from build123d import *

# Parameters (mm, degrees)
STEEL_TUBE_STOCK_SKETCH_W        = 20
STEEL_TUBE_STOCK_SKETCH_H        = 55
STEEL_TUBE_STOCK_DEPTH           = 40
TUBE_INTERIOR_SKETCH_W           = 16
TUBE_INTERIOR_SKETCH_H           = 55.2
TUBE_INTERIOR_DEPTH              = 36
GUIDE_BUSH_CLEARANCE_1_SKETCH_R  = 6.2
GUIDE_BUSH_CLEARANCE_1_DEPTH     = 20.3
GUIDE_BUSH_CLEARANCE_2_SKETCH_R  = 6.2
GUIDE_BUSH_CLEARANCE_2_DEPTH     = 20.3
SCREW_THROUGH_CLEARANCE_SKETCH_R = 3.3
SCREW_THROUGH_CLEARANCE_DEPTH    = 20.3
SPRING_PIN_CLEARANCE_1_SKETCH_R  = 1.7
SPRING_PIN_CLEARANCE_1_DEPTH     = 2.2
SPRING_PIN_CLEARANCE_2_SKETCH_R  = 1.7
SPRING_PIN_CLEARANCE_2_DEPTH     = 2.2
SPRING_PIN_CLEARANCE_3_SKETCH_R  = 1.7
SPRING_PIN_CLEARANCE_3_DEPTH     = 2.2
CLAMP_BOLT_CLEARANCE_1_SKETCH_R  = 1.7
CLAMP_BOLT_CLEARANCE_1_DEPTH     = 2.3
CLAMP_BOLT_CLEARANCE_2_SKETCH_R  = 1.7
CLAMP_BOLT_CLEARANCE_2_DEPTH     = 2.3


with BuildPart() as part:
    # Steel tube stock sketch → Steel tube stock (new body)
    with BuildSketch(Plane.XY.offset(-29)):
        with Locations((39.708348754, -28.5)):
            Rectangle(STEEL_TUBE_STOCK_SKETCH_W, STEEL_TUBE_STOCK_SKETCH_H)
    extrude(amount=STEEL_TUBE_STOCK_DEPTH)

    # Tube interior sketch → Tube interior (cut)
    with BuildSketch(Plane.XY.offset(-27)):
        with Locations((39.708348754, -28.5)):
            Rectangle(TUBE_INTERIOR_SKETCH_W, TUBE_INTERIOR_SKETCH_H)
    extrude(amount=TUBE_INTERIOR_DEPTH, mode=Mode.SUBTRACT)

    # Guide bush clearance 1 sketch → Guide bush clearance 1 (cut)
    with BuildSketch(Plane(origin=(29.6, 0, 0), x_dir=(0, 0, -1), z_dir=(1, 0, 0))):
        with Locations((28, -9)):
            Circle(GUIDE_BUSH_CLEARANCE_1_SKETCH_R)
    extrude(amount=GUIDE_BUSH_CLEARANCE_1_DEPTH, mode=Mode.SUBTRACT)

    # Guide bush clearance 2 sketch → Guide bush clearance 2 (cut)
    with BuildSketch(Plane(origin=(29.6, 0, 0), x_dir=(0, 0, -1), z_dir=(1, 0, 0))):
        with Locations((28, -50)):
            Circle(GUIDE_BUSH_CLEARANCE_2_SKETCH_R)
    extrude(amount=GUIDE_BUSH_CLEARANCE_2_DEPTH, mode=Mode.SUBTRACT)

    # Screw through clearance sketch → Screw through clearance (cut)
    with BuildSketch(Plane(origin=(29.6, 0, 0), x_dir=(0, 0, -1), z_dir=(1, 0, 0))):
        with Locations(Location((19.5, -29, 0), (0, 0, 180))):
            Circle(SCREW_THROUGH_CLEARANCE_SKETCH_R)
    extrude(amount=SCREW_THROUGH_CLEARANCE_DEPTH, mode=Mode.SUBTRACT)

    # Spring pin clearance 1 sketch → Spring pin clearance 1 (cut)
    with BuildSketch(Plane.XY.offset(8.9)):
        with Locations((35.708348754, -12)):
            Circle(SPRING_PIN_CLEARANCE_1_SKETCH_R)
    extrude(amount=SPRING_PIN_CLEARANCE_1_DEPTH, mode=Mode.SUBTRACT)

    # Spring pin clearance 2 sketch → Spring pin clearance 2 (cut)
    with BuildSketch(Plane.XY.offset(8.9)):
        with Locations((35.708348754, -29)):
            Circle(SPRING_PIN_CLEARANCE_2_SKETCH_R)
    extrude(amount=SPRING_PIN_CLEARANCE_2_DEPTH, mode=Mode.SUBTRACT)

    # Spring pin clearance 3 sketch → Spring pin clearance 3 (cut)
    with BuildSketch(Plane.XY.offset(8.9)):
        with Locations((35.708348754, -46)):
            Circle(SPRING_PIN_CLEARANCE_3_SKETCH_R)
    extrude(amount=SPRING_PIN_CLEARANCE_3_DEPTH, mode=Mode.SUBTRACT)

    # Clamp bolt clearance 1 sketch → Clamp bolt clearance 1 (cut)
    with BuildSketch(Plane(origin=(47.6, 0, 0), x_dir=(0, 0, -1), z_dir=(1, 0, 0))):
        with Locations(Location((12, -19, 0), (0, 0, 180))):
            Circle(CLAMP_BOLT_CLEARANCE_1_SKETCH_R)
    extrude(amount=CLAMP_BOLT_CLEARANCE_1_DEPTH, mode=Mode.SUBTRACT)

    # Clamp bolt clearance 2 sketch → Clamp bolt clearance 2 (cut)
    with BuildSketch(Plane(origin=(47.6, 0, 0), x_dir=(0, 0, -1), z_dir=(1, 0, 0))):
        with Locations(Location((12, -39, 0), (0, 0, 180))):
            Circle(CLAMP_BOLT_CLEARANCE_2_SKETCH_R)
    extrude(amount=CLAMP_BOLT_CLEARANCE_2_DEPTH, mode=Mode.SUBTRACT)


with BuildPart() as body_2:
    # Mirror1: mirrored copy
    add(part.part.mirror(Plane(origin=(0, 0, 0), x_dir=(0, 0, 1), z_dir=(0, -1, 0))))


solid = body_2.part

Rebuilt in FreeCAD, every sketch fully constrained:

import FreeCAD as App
import Part
import Sketcher

V = App.Vector


def add_polygon(sketch, points):
    """Adds a closed chain of lines whose ends are joined by coincident constraints."""
    first, n = sketch.GeometryCount, len(points)
    for a, b in zip(points, points[1:] + points[:1]):
        sketch.addGeometry(Part.LineSegment(App.Vector(*a, 0), App.Vector(*b, 0)), False)
    for i in range(n):
        sketch.addConstraint(Sketcher.Constraint("Coincident", first + i, 2, first + (i + 1) % n, 1))

doc = App.newDocument("Part")
body = doc.addObject("PartDesign::Body", "Body")

sketch1 = body.newObject("Sketcher::SketchObject", "Sketch")
sketch1.AttachmentSupport = (doc.getObject("XY_Plane"), [""])
sketch1.MapMode = "FlatFace"
sketch1.AttachmentOffset = App.Placement(V(0, 0, -29), App.Rotation())
add_polygon(sketch1, [(30, -1), (30, -56), (50, -56), (50, -1)])
sketch1.addConstraint([
    Sketcher.Constraint("Vertical", 0),
    Sketcher.Constraint("Horizontal", 1),
    Sketcher.Constraint("Vertical", 2),
    Sketcher.Constraint("Horizontal", 3),
    Sketcher.Constraint("DistanceX", 1, 1, 1, 2, 20.0),
    Sketcher.Constraint("DistanceY", 0, 2, 0, 1, 55.0),
    Sketcher.Constraint("DistanceY", 0, 2, -1, 1, 56.0),
    Sketcher.Constraint("DistanceX", -1, 1, 0, 2, 29.708349),
])
pad1 = body.newObject("PartDesign::Pad", "Pad")
pad1.Profile = sketch1
pad1.Length = 40

sketch2 = body.newObject("Sketcher::SketchObject", "Sketch001")
sketch2.AttachmentSupport = (doc.getObject("XY_Plane"), [""])
sketch2.MapMode = "FlatFace"
sketch2.AttachmentOffset = App.Placement(V(0, 0, -27), App.Rotation())
add_polygon(sketch2, [(32, -1), (32, -56), (48, -56), (48, -1)])
sketch2.addConstraint([
    Sketcher.Constraint("Vertical", 0),
    Sketcher.Constraint("Horizontal", 1),
    Sketcher.Constraint("Vertical", 2),
    Sketcher.Constraint("Horizontal", 3),
    Sketcher.Constraint("DistanceX", 1, 1, 1, 2, 16.0),
    Sketcher.Constraint("DistanceY", 0, 2, 0, 1, 55.2),
    Sketcher.Constraint("DistanceY", 0, 2, -1, 1, 56.1),
    Sketcher.Constraint("DistanceX", -1, 1, 0, 2, 31.708349),
])
pocket1 = body.newObject("PartDesign::Pocket", "Pocket")
pocket1.Profile = sketch2
pocket1.Length = 36
pocket1.Reversed = True

sketch3 = body.newObject("Sketcher::SketchObject", "Sketch002")
sketch3.AttachmentSupport = (doc.getObject("YZ_Plane"), [""])
sketch3.MapMode = "FlatFace"
sketch3.AttachmentOffset = App.Placement(V(0, 0, 29.6), App.Rotation())
sketch3.addGeometry(Part.Circle(V(-9, -28, 0), V(0, 0, 1), 6), False)
sketch3.addConstraint([
    Sketcher.Constraint("Diameter", 0, 12.4),
    Sketcher.Constraint("DistanceX", 0, 3, -1, 1, 9.0),
    Sketcher.Constraint("DistanceY", 0, 3, -1, 1, 28.0),
])
pocket2 = body.newObject("PartDesign::Pocket", "Pocket001")
pocket2.Profile = sketch3
pocket2.Length = 20.3
pocket2.Reversed = True

sketch4 = body.newObject("Sketcher::SketchObject", "Sketch003")
sketch4.AttachmentSupport = (doc.getObject("YZ_Plane"), [""])
sketch4.MapMode = "FlatFace"
sketch4.AttachmentOffset = App.Placement(V(0, 0, 29.6), App.Rotation())
sketch4.addGeometry(Part.Circle(V(-50, -28, 0), V(0, 0, 1), 6), False)
sketch4.addConstraint([
    Sketcher.Constraint("Diameter", 0, 12.4),
    Sketcher.Constraint("DistanceX", 0, 3, -1, 1, 50.0),
    Sketcher.Constraint("DistanceY", 0, 3, -1, 1, 28.0),
])
pocket3 = body.newObject("PartDesign::Pocket", "Pocket002")
pocket3.Profile = sketch4
pocket3.Length = 20.3
pocket3.Reversed = True

sketch5 = body.newObject("Sketcher::SketchObject", "Sketch004")
sketch5.AttachmentSupport = (doc.getObject("YZ_Plane"), [""])
sketch5.MapMode = "FlatFace"
sketch5.AttachmentOffset = App.Placement(V(0, 0, 29.6), App.Rotation())
sketch5.addGeometry(Part.Circle(V(-29, -19.5, 0), V(0, 0, 1), 3.3), False)
sketch5.addConstraint([
    Sketcher.Constraint("Diameter", 0, 6.6),
    Sketcher.Constraint("DistanceX", 0, 3, -1, 1, 29.0),
    Sketcher.Constraint("DistanceY", 0, 3, -1, 1, 19.5),
])
pocket4 = body.newObject("PartDesign::Pocket", "Pocket003")
pocket4.Profile = sketch5
pocket4.Length = 20.3
pocket4.Reversed = True

sketch6 = body.newObject("Sketcher::SketchObject", "Sketch005")
sketch6.AttachmentSupport = (doc.getObject("XY_Plane"), [""])
sketch6.MapMode = "FlatFace"
sketch6.AttachmentOffset = App.Placement(V(0, 0, 8.9), App.Rotation())
sketch6.addGeometry(Part.Circle(V(35.7, -12, 0), V(0, 0, 1), 1.7), False)
sketch6.addConstraint([
    Sketcher.Constraint("Diameter", 0, 3.4),
    Sketcher.Constraint("DistanceY", 0, 3, -1, 1, 12.0),
    Sketcher.Constraint("DistanceX", -1, 1, 0, 3, 35.708349),
])
pocket5 = body.newObject("PartDesign::Pocket", "Pocket004")
pocket5.Profile = sketch6
pocket5.Length = 2.2
pocket5.Reversed = True

sketch7 = body.newObject("Sketcher::SketchObject", "Sketch006")
sketch7.AttachmentSupport = (doc.getObject("XY_Plane"), [""])
sketch7.MapMode = "FlatFace"
sketch7.AttachmentOffset = App.Placement(V(0, 0, 8.9), App.Rotation())
sketch7.addGeometry(Part.Circle(V(35.7, -29, 0), V(0, 0, 1), 1.7), False)
sketch7.addConstraint([
    Sketcher.Constraint("Diameter", 0, 3.4),
    Sketcher.Constraint("DistanceY", 0, 3, -1, 1, 29.0),
    Sketcher.Constraint("DistanceX", -1, 1, 0, 3, 35.708349),
])
pocket6 = body.newObject("PartDesign::Pocket", "Pocket005")
pocket6.Profile = sketch7
pocket6.Length = 2.2
pocket6.Reversed = True

sketch8 = body.newObject("Sketcher::SketchObject", "Sketch007")
sketch8.AttachmentSupport = (doc.getObject("XY_Plane"), [""])
sketch8.MapMode = "FlatFace"
sketch8.AttachmentOffset = App.Placement(V(0, 0, 8.9), App.Rotation())
sketch8.addGeometry(Part.Circle(V(35.7, -46, 0), V(0, 0, 1), 1.7), False)
sketch8.addConstraint([
    Sketcher.Constraint("Diameter", 0, 3.4),
    Sketcher.Constraint("DistanceY", 0, 3, -1, 1, 46.0),
    Sketcher.Constraint("DistanceX", -1, 1, 0, 3, 35.708349),
])
pocket7 = body.newObject("PartDesign::Pocket", "Pocket006")
pocket7.Profile = sketch8
pocket7.Length = 2.2
pocket7.Reversed = True

sketch9 = body.newObject("Sketcher::SketchObject", "Sketch008")
sketch9.AttachmentSupport = (doc.getObject("YZ_Plane"), [""])
sketch9.MapMode = "FlatFace"
sketch9.AttachmentOffset = App.Placement(V(0, 0, 47.6), App.Rotation())
sketch9.addGeometry(Part.Circle(V(-19, -12, 0), V(0, 0, 1), 1.7), False)
sketch9.addConstraint([
    Sketcher.Constraint("Diameter", 0, 3.4),
    Sketcher.Constraint("DistanceX", 0, 3, -1, 1, 19.0),
    Sketcher.Constraint("DistanceY", 0, 3, -1, 1, 12.0),
])
pocket8 = body.newObject("PartDesign::Pocket", "Pocket007")
pocket8.Profile = sketch9
pocket8.Length = 2.3
pocket8.Reversed = True

sketch10 = body.newObject("Sketcher::SketchObject", "Sketch009")
sketch10.AttachmentSupport = (doc.getObject("YZ_Plane"), [""])
sketch10.MapMode = "FlatFace"
sketch10.AttachmentOffset = App.Placement(V(0, 0, 47.6), App.Rotation())
sketch10.addGeometry(Part.Circle(V(-39, -12, 0), V(0, 0, 1), 1.7), False)
sketch10.addConstraint([
    Sketcher.Constraint("Diameter", 0, 3.4),
    Sketcher.Constraint("DistanceX", 0, 3, -1, 1, 39.0),
    Sketcher.Constraint("DistanceY", 0, 3, -1, 1, 12.0),
])
pocket9 = body.newObject("PartDesign::Pocket", "Pocket008")
pocket9.Profile = sketch10
pocket9.Length = 2.3
pocket9.Reversed = True
body2 = doc.addObject("PartDesign::Body", "Body001")
doc.recompute()

mirroring = doc.addObject("Part::Mirroring", "Mirroring")
mirroring.Source = body
mirroring.Base = V(0, 0, 0)
mirroring.Normal = V(0, -1, 0)
body2.BaseFeature = mirroring
doc.recompute()
body.Visibility = False
mirroring.Visibility = False

doc.recompute()
